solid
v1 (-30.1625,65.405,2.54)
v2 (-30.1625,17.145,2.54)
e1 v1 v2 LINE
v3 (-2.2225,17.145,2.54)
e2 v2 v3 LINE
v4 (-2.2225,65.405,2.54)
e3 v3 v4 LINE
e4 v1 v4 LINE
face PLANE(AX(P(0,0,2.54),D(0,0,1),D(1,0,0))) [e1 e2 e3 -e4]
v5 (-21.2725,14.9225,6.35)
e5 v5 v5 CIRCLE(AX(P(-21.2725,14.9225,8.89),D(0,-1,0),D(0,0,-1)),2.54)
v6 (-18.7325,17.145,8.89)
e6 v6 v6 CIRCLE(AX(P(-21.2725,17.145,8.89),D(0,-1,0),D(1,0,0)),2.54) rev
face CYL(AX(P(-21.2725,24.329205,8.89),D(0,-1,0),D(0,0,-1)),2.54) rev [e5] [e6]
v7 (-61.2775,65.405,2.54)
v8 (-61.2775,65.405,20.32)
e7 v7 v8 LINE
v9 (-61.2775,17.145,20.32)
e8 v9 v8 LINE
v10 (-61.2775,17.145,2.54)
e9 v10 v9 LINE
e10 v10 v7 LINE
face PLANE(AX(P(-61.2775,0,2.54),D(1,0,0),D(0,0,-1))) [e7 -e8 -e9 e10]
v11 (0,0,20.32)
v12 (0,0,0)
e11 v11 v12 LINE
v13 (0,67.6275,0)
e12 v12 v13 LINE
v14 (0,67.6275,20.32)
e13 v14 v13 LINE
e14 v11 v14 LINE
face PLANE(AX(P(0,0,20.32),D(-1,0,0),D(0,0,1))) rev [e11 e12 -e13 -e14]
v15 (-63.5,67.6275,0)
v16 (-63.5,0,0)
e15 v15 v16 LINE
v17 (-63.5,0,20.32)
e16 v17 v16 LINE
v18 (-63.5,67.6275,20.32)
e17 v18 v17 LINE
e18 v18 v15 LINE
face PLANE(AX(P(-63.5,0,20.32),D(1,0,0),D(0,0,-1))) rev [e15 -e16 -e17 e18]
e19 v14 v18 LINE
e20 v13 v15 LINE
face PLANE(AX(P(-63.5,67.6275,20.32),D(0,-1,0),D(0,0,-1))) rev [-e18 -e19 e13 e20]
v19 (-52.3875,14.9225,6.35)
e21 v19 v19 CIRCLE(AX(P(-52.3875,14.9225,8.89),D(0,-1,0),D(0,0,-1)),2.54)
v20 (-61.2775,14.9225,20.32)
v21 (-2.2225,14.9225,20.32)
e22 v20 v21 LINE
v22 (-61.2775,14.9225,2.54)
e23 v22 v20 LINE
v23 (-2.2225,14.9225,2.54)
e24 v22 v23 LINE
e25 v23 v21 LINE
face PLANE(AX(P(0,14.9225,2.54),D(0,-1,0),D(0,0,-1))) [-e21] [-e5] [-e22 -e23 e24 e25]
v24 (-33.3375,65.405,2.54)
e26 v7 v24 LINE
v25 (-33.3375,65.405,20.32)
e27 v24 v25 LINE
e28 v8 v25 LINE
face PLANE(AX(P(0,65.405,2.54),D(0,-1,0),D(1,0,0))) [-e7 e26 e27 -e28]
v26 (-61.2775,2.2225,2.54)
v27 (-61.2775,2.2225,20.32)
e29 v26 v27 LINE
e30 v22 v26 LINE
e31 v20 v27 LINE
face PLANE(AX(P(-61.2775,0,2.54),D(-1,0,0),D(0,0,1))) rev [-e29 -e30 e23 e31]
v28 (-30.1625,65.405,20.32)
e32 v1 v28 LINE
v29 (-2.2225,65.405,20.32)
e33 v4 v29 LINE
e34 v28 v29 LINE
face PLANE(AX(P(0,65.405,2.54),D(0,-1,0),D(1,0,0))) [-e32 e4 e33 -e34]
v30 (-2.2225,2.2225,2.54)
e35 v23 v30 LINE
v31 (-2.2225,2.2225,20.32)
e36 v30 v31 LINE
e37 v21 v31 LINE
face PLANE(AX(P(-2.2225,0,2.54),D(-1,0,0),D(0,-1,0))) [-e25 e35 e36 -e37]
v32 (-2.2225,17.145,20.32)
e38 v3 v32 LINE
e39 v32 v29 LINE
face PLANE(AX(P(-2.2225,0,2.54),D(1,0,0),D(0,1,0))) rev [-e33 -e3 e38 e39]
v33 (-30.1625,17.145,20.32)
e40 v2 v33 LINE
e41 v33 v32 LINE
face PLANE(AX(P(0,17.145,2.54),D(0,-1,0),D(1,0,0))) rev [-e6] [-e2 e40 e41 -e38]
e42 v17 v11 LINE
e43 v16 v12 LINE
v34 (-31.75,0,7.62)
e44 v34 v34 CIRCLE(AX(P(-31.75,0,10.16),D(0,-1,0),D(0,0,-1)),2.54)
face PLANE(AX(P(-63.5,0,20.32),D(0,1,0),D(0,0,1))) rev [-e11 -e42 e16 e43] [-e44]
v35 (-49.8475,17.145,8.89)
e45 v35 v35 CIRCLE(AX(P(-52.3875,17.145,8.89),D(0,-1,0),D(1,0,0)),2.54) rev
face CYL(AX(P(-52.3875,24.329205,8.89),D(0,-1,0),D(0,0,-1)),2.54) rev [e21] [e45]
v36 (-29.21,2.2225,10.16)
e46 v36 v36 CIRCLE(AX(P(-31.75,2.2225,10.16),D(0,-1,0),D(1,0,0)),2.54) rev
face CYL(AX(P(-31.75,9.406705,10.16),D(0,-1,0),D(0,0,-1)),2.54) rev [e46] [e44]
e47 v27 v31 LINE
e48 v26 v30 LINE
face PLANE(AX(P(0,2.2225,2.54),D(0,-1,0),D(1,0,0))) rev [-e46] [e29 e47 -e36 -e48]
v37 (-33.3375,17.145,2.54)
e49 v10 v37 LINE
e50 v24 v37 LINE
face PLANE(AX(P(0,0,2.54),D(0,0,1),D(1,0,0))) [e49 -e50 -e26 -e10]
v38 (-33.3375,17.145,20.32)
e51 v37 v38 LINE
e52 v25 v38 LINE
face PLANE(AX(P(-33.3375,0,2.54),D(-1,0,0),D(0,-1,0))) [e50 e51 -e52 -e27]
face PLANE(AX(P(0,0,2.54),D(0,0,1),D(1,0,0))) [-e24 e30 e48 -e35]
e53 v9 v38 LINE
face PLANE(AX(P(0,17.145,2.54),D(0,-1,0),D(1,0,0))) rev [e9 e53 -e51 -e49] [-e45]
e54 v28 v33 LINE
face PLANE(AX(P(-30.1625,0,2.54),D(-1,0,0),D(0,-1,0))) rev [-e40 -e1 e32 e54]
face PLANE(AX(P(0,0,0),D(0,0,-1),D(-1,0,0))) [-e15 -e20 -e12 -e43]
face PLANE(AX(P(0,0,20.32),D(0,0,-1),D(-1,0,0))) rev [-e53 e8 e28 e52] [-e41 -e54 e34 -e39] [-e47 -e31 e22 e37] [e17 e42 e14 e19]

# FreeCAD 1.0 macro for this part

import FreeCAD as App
import Part
import Sketcher
from FreeCAD import Vector
Q = App.Units.Quantity

doc = App.newDocument("Part")
body = doc.addObject("PartDesign::Body", "Body")

# Sketch on XY plane
sketch1 = doc.addObject("Sketcher::SketchObject", "Sketch")
body.addObject(sketch1)
sketch1.AttachmentSupport = (doc.XY_Plane, [""])
sketch1.MapMode = "FlatFace"
sketch1.addGeometry([
    Part.LineSegment(Vector(-64, 68, 0), Vector(-64, 0, 0)),
    Part.LineSegment(Vector(-64, 0, 0), Vector(0, 0, 0)),
    Part.LineSegment(Vector(0, 0, 0), Vector(0, 68, 0)),
    Part.LineSegment(Vector(0, 68, 0), Vector(-64, 68, 0)),
], False)
sketch1.addConstraint([
    Sketcher.Constraint("Coincident", 0, 2, 1, 1),
    Sketcher.Constraint("Coincident", 1, 2, 2, 1),
    Sketcher.Constraint("Coincident", 2, 2, 3, 1),
    Sketcher.Constraint("Coincident", 3, 2, 0, 1),
    Sketcher.Constraint("Vertical", 0),
    Sketcher.Constraint("Horizontal", 1),
    Sketcher.Constraint("Vertical", 2),
    Sketcher.Constraint("Horizontal", 3),
    Sketcher.Constraint("Coincident", 1, 2, -1, 1),
    Sketcher.Constraint("DistanceX", 1, 1, 1, 2, Q("2.5 in")),
    Sketcher.Constraint("DistanceY", 0, 2, 0, 1, Q("2.6625 in")),
])
pad1 = doc.addObject("PartDesign::Pad", "Pad")
body.addObject(pad1)
pad1.Profile = sketch1
pad1.Length = Q("0.8 in")

# Sketch on XY plane
sketch2 = doc.addObject("Sketcher::SketchObject", "Sketch001")
body.addObject(sketch2)
sketch2.AttachmentSupport = (doc.XY_Plane, [""])
sketch2.MapMode = "FlatFace"
sketch2.AttachmentOffset = App.Placement(Vector(0, 0, 0.8 * 25.4), App.Rotation())
sketch2.addGeometry([
    Part.LineSegment(Vector(-61, 65, 0), Vector(-61, 17, 0)),  # 0
    Part.LineSegment(Vector(-61, 17, 0), Vector(-33, 17, 0)),  # 1
    Part.LineSegment(Vector(-33, 17, 0), Vector(-33, 65, 0)),  # 2
    Part.LineSegment(Vector(-33, 65, 0), Vector(-61, 65, 0)),  # 3
    Part.LineSegment(Vector(-30, 65, 0), Vector(-30, 17, 0)),  # 4
    Part.LineSegment(Vector(-30, 17, 0), Vector(-2, 17, 0)),  # 5
    Part.LineSegment(Vector(-2, 17, 0), Vector(-2, 65, 0)),  # 6
    Part.LineSegment(Vector(-2, 65, 0), Vector(-30, 65, 0)),  # 7
    Part.LineSegment(Vector(-61, 15, 0), Vector(-61, 2, 0)),  # 8
    Part.LineSegment(Vector(-61, 2, 0), Vector(-2, 2, 0)),  # 9
    Part.LineSegment(Vector(-2, 2, 0), Vector(-2, 15, 0)),  # 10
    Part.LineSegment(Vector(-2, 15, 0), Vector(-61, 15, 0)),  # 11
], False)
sketch2.addConstraint([
    Sketcher.Constraint("Coincident", 0, 2, 1, 1),
    Sketcher.Constraint("Coincident", 1, 2, 2, 1),
    Sketcher.Constraint("Coincident", 2, 2, 3, 1),
    Sketcher.Constraint("Coincident", 3, 2, 0, 1),
    Sketcher.Constraint("Coincident", 4, 2, 5, 1),
    Sketcher.Constraint("Coincident", 5, 2, 6, 1),
    Sketcher.Constraint("Coincident", 6, 2, 7, 1),
    Sketcher.Constraint("Coincident", 7, 2, 4, 1),
    Sketcher.Constraint("Coincident", 8, 2, 9, 1),
    Sketcher.Constraint("Coincident", 9, 2, 10, 1),
    Sketcher.Constraint("Coincident", 10, 2, 11, 1),
    Sketcher.Constraint("Coincident", 11, 2, 8, 1),
    Sketcher.Constraint("Vertical", 0),
    Sketcher.Constraint("Horizontal", 1),
    Sketcher.Constraint("Vertical", 2),
    Sketcher.Constraint("Horizontal", 3),
    Sketcher.Constraint("Vertical", 4),
    Sketcher.Constraint("Horizontal", 5),
    Sketcher.Constraint("Vertical", 6),
    Sketcher.Constraint("Horizontal", 7),
    Sketcher.Constraint("Vertical", 8),
    Sketcher.Constraint("Horizontal", 9),
    Sketcher.Constraint("Vertical", 10),
    Sketcher.Constraint("Horizontal", 11),
    Sketcher.Constraint("Horizontal", 1, 2, 4, 2),
    Sketcher.Constraint("Horizontal", 3, 2, 6, 2),
    Sketcher.Constraint("Vertical", 3, 2, 8, 2),
    Sketcher.Constraint("Vertical", 6, 2, 9, 2),
    Sketcher.Constraint("Equal", 3, 5),
    Sketcher.Constraint("DistanceX", 1, 1, 1, 2, Q("1.1 in")),
    Sketcher.Constraint("DistanceY", 0, 2, 0, 1, Q("1.9 in")),
    Sketcher.Constraint("DistanceY", 8, 2, 8, 1, Q("0.5 in")),
    Sketcher.Constraint("DistanceX", 9, 1, 9, 2, Q("2.325 in")),
    Sketcher.Constraint("DistanceY", -1, 1, 0, 2, Q("0.675 in")),
    Sketcher.Constraint("DistanceX", 1, 2, -1, 1, Q("1.3125 in")),
    Sketcher.Constraint("DistanceY", -1, 1, 8, 2, Q("0.0875 in")),
])
pocket1 = doc.addObject("PartDesign::Pocket", "Pocket")
body.addObject(pocket1)
pocket1.Profile = sketch2
pocket1.Length = Q("0.7 in")

# Sketch on XZ plane
sketch3 = doc.addObject("Sketcher::SketchObject", "Sketch002")
body.addObject(sketch3)
sketch3.AttachmentSupport = (doc.XZ_Plane, [""])
sketch3.MapMode = "FlatFace"
sketch3.addGeometry(Part.Circle(Vector(-31.8, 10.2, 0), Vector(0, 0, 1), 2.5), False)
sketch3.addConstraint([
    Sketcher.Constraint("Diameter", 0, Q("0.2 in")),
    Sketcher.Constraint("DistanceY", -1, 1, 0, 3, Q("0.4 in")),
    Sketcher.Constraint("DistanceX", 0, 3, -1, 1, Q("1.25 in")),
])
pocket2 = doc.addObject("PartDesign::Pocket", "Pocket001")
body.addObject(pocket2)
pocket2.Profile = sketch3
pocket2.Length = Q("0.0875 in")

# Sketch on XZ plane
sketch4 = doc.addObject("Sketcher::SketchObject", "Sketch003")
body.addObject(sketch4)
sketch4.AttachmentSupport = (doc.XZ_Plane, [""])
sketch4.MapMode = "FlatFace"
sketch4.AttachmentOffset = App.Placement(Vector(0, 0, -0.5875 * 25.4), App.Rotation())
sketch4.addGeometry([
    Part.Circle(Vector(-52.4, 8.9, 0), Vector(0, 0, 1), 2.5),
    Part.Circle(Vector(-21.3, 8.9, 0), Vector(0, 0, 1), 2.5),
], False)
sketch4.addConstraint([
    Sketcher.Constraint("Equal", 0, 1),
    Sketcher.Constraint("Horizontal", 0, 3, 1, 3),
    Sketcher.Constraint("Diameter", 0, Q("0.2 in")),
    Sketcher.Constraint("DistanceY", -1, 1, 0, 3, Q("0.35 in")),
    Sketcher.Constraint("DistanceX", 0, 3, -1, 1, Q("2.0625 in")),
    Sketcher.Constraint("DistanceX", 0, 3, 1, 3, Q("1.225 in")),
])
pocket3 = doc.addObject("PartDesign::Pocket", "Pocket002")
body.addObject(pocket3)
pocket3.Profile = sketch4
pocket3.Length = Q("0.0875 in")

doc.recompute()
